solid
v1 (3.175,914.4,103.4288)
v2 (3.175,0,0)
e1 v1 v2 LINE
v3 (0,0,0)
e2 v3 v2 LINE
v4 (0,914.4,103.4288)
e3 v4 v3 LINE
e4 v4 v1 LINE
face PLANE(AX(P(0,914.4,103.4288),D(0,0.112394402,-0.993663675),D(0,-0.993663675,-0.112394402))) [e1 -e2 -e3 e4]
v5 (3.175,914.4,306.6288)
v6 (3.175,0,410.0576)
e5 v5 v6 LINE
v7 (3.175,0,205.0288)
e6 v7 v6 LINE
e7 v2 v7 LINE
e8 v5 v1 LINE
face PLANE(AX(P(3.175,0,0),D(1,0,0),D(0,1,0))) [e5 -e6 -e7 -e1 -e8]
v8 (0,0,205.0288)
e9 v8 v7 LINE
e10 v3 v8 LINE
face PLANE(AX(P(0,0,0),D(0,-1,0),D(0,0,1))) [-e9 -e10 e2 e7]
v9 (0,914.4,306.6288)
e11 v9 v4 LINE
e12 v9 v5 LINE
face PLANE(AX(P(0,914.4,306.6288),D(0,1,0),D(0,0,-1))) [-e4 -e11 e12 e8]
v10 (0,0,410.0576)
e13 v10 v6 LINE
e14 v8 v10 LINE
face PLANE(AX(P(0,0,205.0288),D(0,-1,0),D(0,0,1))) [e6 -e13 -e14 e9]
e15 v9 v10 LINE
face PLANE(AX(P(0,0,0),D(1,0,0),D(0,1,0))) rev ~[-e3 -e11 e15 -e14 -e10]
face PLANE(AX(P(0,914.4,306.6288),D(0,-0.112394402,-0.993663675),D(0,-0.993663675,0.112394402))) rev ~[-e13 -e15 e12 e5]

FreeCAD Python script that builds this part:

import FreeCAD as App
import Part
import Sketcher

V = App.Vector
Q = App.Units.Quantity


def add_polygon(sketch, points):
    """Adds a closed chain of lines whose ends are joined by coincident constraints."""
    first, n = sketch.GeometryCount, len(points)
    for a, b in zip(points, points[1:] + points[:1]):
        sketch.addGeometry(Part.LineSegment(App.Vector(*a, 0), App.Vector(*b, 0)), False)
    for i in range(n):
        sketch.addConstraint(Sketcher.Constraint("Coincident", first + i, 2, first + (i + 1) % n, 1))

doc = App.newDocument("Part")
body = doc.addObject("PartDesign::Body", "Body")

sketch1 = body.newObject("Sketcher::SketchObject", "Sketch")
sketch1.AttachmentSupport = (doc.getObject("YZ_Plane"), [""])
sketch1.MapMode = "FlatFace"
add_polygon(sketch1, [(0, 410), (0, 0), (914, 103), (914, 307)])
sketch1.addConstraint([
    Sketcher.Constraint("Vertical", 0),
    Sketcher.Constraint("Vertical", 2),
    Sketcher.Constraint("Coincident", 0, 2, -1, 1),
    Sketcher.Constraint("Equal", 1, 3),
    Sketcher.Constraint("DistanceY", 2, 1, 2, 2, Q("8 in")),
    Sketcher.Constraint("DistanceX", -1, 1, 1, 2, Q("36 in")),
    Sketcher.Constraint("DistanceY", 0, 2, 0, 1, Q("16.144 in")),
])
pad1 = body.newObject("PartDesign::Pad", "Pad")
pad1.Profile = sketch1
pad1.Length = Q("0.125 in")

doc.recompute()
